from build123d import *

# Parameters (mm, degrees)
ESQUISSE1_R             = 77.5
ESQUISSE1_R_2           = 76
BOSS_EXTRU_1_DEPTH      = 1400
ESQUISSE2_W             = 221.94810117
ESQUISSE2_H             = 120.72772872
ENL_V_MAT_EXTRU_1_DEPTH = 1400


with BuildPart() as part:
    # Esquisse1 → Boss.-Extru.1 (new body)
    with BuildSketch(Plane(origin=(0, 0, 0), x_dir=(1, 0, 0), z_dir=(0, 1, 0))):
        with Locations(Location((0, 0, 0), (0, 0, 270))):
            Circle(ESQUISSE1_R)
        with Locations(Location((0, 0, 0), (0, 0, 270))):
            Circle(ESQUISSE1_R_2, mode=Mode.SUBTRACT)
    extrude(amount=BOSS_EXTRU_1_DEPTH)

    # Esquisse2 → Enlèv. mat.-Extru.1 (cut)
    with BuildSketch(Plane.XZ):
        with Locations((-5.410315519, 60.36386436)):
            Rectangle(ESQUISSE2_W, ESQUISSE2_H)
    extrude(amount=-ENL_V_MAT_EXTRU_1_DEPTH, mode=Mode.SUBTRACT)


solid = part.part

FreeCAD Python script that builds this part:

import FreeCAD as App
import Part
import Sketcher
from FreeCAD import Vector
Q = App.Units.Quantity


def add_polygon(sketch, points):
    """Adds a closed chain of lines whose ends are joined by coincident constraints."""
    first, n = sketch.GeometryCount, len(points)
    for a, b in zip(points, points[1:] + points[:1]):
        sketch.addGeometry(Part.LineSegment(App.Vector(*a, 0), App.Vector(*b, 0)), False)
    for i in range(n):
        sketch.addConstraint(Sketcher.Constraint("Coincident", first + i, 2, first + (i + 1) % n, 1))

doc = App.newDocument("Part")
body = doc.addObject("PartDesign::Body", "Body")

# Sketch on XZ plane
sketch1 = body.newObject("Sketcher::SketchObject", "Sketch")
sketch1.AttachmentSupport = (doc.getObject("XZ_Plane"), [""])
sketch1.MapMode = "FlatFace"
sketch1.addGeometry(Part.Circle(Vector(0, 0, 0), Vector(0, 0, 1), 78), False)
sketch1.addGeometry(Part.Circle(Vector(0, 0, 0), Vector(0, 0, 1), 76), False)
sketch1.addConstraint(Sketcher.Constraint("Coincident", 0, 3, -1, 1))
sketch1.addConstraint(Sketcher.Constraint("Coincident", 1, 3, -1, 1))
sketch1.addConstraint(Sketcher.Constraint("Diameter", 0, Q("155 mm")))
sketch1.addConstraint(Sketcher.Constraint("Diameter", 1, Q("152 mm")))
pad1 = body.newObject("PartDesign::Pad", "Pad")
pad1.Profile = sketch1
pad1.Length = 1400
pad1.Reversed = True

# Sketch on XZ plane
sketch2 = body.newObject("Sketcher::SketchObject", "Sketch001")
sketch2.AttachmentSupport = (doc.getObject("XZ_Plane"), [""])
sketch2.MapMode = "FlatFace"
add_polygon(sketch2, [(-116, 121), (-116, 0), (106, 0), (106, 121)])  # lines 0-3
sketch2.addConstraint(Sketcher.Constraint("Vertical", 0))
sketch2.addConstraint(Sketcher.Constraint("Horizontal", 1))
sketch2.addConstraint(Sketcher.Constraint("Vertical", 2))
sketch2.addConstraint(Sketcher.Constraint("Horizontal", 3))
sketch2.addConstraint(Sketcher.Constraint("PointOnObject", 0, 2, -1))
sketch2.addConstraint(Sketcher.Constraint("DistanceX", 1, 1, 1, 2, Q("221.948101 mm")))
sketch2.addConstraint(Sketcher.Constraint("DistanceY", 0, 2, 0, 1, Q("120.727729 mm")))
sketch2.addConstraint(Sketcher.Constraint("DistanceX", 0, 2, -1, 1, Q("116.384366 mm")))
pocket1 = body.newObject("PartDesign::Pocket", "Pocket")
pocket1.Profile = sketch2
pocket1.Length = 1400

doc.recompute()
